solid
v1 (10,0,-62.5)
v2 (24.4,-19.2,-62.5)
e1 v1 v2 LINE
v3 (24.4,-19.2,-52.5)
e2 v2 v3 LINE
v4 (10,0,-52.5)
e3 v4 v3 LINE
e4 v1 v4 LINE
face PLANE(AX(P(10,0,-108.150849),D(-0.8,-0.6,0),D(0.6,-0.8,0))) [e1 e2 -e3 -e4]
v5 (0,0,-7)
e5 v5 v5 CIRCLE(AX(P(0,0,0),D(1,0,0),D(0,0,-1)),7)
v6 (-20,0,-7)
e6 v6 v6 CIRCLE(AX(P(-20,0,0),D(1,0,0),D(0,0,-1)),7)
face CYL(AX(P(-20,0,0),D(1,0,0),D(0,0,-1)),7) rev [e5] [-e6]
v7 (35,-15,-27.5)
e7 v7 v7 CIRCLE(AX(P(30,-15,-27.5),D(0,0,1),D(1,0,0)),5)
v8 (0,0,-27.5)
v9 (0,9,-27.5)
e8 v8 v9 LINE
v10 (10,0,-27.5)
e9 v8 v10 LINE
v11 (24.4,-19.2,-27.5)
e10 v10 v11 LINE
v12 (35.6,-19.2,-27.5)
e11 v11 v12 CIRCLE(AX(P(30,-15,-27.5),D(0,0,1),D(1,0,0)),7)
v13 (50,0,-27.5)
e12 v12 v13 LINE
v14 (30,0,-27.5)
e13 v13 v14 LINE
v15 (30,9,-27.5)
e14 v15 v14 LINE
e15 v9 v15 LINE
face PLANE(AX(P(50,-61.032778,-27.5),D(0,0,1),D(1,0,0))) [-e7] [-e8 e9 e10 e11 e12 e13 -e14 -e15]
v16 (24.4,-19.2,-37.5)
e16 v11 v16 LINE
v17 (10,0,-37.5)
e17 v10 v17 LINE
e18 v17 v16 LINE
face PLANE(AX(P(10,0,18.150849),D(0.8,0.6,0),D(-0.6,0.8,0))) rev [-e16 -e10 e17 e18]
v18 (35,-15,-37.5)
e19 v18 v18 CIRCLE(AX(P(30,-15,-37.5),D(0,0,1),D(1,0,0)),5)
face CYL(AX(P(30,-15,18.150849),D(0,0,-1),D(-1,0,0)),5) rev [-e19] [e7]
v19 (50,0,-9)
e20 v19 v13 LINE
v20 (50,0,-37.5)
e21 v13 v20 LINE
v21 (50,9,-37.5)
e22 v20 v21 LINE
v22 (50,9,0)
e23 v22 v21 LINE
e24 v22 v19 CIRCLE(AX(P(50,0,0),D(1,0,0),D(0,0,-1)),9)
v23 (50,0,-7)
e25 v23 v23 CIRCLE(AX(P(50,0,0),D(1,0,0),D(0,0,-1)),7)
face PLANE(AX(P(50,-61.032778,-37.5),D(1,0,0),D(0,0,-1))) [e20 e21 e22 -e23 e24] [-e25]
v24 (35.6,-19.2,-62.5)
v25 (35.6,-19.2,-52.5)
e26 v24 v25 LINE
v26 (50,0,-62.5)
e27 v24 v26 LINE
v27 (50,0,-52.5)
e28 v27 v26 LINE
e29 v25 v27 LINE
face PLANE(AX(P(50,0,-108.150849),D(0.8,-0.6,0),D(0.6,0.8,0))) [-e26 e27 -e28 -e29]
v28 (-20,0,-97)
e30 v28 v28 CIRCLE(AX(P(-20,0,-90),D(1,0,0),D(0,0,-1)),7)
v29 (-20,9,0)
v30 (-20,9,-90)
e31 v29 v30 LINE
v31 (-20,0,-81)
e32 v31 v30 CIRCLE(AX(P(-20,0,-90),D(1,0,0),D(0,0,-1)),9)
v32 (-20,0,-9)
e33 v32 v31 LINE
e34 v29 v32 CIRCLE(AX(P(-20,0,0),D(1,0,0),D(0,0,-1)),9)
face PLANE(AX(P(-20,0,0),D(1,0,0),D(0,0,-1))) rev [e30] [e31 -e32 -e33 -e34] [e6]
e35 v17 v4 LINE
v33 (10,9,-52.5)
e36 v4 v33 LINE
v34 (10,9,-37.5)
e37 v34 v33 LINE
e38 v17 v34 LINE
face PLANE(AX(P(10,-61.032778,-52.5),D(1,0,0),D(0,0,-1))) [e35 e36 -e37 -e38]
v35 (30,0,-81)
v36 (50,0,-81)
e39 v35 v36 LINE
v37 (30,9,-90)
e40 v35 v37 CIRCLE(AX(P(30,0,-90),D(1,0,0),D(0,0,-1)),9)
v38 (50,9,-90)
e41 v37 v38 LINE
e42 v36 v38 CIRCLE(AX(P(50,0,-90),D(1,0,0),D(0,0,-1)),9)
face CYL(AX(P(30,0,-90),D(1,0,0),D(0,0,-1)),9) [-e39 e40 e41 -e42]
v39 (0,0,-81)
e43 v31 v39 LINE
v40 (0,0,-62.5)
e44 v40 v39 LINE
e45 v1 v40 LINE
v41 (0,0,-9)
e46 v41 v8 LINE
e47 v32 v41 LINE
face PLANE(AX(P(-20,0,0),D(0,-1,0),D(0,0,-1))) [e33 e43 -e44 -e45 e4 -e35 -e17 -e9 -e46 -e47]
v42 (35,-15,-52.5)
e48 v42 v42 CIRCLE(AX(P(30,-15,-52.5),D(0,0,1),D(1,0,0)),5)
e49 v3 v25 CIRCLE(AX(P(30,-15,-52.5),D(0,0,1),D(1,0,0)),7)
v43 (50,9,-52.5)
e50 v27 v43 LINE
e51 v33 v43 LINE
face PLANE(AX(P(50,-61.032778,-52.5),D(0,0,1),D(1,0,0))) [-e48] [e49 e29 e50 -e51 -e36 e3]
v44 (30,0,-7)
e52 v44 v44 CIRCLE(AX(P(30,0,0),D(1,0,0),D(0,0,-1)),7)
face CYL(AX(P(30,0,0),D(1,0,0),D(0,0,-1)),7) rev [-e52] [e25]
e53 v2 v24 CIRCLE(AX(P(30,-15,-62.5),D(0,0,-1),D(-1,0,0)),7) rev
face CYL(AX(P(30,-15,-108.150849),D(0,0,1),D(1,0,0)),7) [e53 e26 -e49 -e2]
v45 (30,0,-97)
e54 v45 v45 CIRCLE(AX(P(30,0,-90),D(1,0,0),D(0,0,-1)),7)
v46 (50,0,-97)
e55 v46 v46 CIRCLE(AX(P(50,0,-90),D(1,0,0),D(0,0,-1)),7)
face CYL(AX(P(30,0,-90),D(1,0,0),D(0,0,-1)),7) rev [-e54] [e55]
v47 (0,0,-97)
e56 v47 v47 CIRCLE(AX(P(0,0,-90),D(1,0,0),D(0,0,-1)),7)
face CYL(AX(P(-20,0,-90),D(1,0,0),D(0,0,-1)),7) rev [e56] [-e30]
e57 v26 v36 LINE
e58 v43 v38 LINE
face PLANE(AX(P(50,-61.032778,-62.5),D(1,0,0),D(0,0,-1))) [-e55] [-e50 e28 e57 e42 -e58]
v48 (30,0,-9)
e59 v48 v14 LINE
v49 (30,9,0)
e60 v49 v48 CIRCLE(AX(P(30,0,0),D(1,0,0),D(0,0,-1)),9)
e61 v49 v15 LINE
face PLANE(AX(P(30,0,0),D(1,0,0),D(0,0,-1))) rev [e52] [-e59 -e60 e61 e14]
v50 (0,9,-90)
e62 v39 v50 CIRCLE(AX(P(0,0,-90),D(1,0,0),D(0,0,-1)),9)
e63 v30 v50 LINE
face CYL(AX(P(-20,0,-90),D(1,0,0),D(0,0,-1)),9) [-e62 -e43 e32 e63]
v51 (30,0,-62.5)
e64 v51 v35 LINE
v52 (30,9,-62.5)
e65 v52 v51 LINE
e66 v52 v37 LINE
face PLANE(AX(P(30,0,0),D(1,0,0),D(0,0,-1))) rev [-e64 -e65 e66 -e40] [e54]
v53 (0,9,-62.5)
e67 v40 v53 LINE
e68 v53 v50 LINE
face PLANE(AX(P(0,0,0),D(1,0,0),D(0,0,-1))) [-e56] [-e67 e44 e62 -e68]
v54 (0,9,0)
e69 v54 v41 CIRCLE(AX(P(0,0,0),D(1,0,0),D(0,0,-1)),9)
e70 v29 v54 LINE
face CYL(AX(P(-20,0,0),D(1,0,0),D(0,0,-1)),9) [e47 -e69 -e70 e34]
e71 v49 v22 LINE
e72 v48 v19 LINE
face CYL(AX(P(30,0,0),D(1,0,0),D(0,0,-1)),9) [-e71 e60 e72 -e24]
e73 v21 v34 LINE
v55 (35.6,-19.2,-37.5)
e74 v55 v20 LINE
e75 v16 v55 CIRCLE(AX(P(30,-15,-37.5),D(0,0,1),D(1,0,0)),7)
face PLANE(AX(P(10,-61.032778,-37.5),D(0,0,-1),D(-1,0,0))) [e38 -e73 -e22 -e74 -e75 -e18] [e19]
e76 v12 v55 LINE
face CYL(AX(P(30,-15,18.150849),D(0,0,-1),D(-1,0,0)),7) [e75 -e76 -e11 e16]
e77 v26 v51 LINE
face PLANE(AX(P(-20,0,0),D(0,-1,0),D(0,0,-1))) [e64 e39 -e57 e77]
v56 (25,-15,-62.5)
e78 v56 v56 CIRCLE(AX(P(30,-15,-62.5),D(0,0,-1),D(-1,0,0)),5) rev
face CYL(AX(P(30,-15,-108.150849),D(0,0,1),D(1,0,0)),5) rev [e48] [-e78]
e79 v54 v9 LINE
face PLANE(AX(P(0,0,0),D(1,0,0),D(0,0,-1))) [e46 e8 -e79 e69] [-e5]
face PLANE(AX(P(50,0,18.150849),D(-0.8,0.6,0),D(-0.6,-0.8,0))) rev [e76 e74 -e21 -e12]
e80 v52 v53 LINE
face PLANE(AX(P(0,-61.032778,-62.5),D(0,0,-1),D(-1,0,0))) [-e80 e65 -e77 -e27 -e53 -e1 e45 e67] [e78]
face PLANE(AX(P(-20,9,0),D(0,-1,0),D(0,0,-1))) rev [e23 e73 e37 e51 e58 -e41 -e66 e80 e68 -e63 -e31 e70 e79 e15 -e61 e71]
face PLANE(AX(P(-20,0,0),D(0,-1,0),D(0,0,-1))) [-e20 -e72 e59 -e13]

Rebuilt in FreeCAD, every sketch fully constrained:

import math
import FreeCAD as App
import Part
import Sketcher


def add_polygon(sketch, points):
    """Adds a closed chain of lines whose ends are joined by coincident constraints."""
    first, n = sketch.GeometryCount, len(points)
    for a, b in zip(points, points[1:] + points[:1]):
        sketch.addGeometry(Part.LineSegment(App.Vector(*a, 0), App.Vector(*b, 0)), False)
    for i in range(n):
        sketch.addConstraint(Sketcher.Constraint("Coincident", first + i, 2, first + (i + 1) % n, 1))

doc = App.newDocument("Part")
body = doc.addObject("PartDesign::Body", "Body")

# Sketch on YZ plane
sketch1 = doc.addObject("Sketcher::SketchObject", "Sketch")
body.addObject(sketch1)
sketch1.AttachmentSupport = (doc.YZ_Plane, [""])
sketch1.MapMode = "FlatFace"
sketch1.addGeometry([
    Part.LineSegment(App.Vector(9, -90, 0), App.Vector(9, 0, 0)),  # 0
    Part.ArcOfCircle(Part.Circle(App.Vector(0, 0, 0), App.Vector(0, 0, 1), 9), math.radians(0), math.radians(270)),  # 1
    Part.LineSegment(App.Vector(0, -9, 0), App.Vector(0, -81, 0)),  # 2
    Part.ArcOfCircle(Part.Circle(App.Vector(0, -90, 0), App.Vector(0, 0, 1), 9), math.radians(90), math.radians(360)),  # 3
    Part.Circle(App.Vector(0, 0, 0), App.Vector(0, 0, 1), 7),  # 4
    Part.Circle(App.Vector(0, -90, 0), App.Vector(0, 0, 1), 7),  # 5
], False)
sketch1.addConstraint([
    Sketcher.Constraint("Tangent", 0, 2, 1, 1),
    Sketcher.Constraint("Coincident", 1, 2, 2, 1),
    Sketcher.Constraint("Coincident", 2, 2, 3, 1),
    Sketcher.Constraint("Tangent", 3, 2, 0, 1),
    Sketcher.Constraint("Vertical", 0),
    Sketcher.Constraint("Vertical", 2),
    Sketcher.Constraint("Coincident", 1, 3, -1, 1),
    Sketcher.Constraint("Coincident", 4, 3, -1, 1),
    Sketcher.Constraint("Coincident", 5, 3, 3, 3),
    Sketcher.Constraint("Equal", 1, 3),
    Sketcher.Constraint("Equal", 4, 5),
    Sketcher.Constraint("PointOnObject", 1, 2, -2),
    Sketcher.Constraint("Diameter", 4, 14.0),
    Sketcher.Constraint("Radius", 1, 9.0),
    Sketcher.Constraint("DistanceY", 0, 1, 0, 2, 90.0),
])
pad1 = doc.addObject("PartDesign::Pad", "Pad")
body.addObject(pad1)
pad1.Profile = sketch1
pad1.Length = 20
pad1.Reversed = True

# Sketch on XZ plane
sketch2 = doc.addObject("Sketcher::SketchObject", "Sketch001")
body.addObject(sketch2)
sketch2.AttachmentSupport = (doc.XZ_Plane, [""])
sketch2.MapMode = "FlatFace"
sketch2.AttachmentOffset = App.Placement(App.Vector(0, 0, -9), App.Rotation())
add_polygon(sketch2, [(50, -62.5), (0, -62.5), (0, -27.5), (50, -27.5), (50, -37.5), (10, -37.5), (10, -52.5), (50, -52.5)])  # lines 0-7
sketch2.addConstraint([
    Sketcher.Constraint("Horizontal", 0),
    Sketcher.Constraint("Vertical", 1),
    Sketcher.Constraint("Horizontal", 2),
    Sketcher.Constraint("Vertical", 3),
    Sketcher.Constraint("Horizontal", 4),
    Sketcher.Constraint("Vertical", 5),
    Sketcher.Constraint("Horizontal", 6),
    Sketcher.Constraint("Vertical", 7),
    Sketcher.Constraint("PointOnObject", 0, 2, -2),
    Sketcher.Constraint("Vertical", 3, 2, 6, 2),
    Sketcher.Constraint("Equal", 3, 7),
    Sketcher.Constraint("DistanceX", 0, 2, 0, 1, 50.0),
    Sketcher.Constraint("DistanceX", 4, 2, 4, 1, 40.0),
    Sketcher.Constraint("DistanceY", 1, 1, 1, 2, 35.0),
    Sketcher.Constraint("DistanceY", 3, 2, 3, 1, 10.0),
    Sketcher.Constraint("DistanceY", 0, 2, -1, 1, 62.5),
])
pad2 = doc.addObject("PartDesign::Pad", "Pad001")
body.addObject(pad2)
pad2.Profile = sketch2
pad2.Length = 9

# Sketch on YZ plane
sketch3 = doc.addObject("Sketcher::SketchObject", "Sketch002")
body.addObject(sketch3)
sketch3.AttachmentSupport = (doc.YZ_Plane, [""])
sketch3.MapMode = "FlatFace"
sketch3.AttachmentOffset = App.Placement(App.Vector(0, 0, 50), App.Rotation())
sketch3.addGeometry([
    Part.ArcOfCircle(Part.Circle(App.Vector(0, 0, 0), App.Vector(0, 0, 1), 9), math.radians(0), math.radians(270)),  # 0
    Part.LineSegment(App.Vector(0, -9, 0), App.Vector(0, -27.5, 0)),  # 1
    Part.LineSegment(App.Vector(0, -27.5, 0), App.Vector(9, -27.5, 0)),  # 2
    Part.LineSegment(App.Vector(9, -27.5, 0), App.Vector(9, 0, 0)),  # 3
    Part.Circle(App.Vector(0, 0, 0), App.Vector(0, 0, 1), 7),  # 4
    Part.LineSegment(App.Vector(9, -90, 0), App.Vector(9, -52.5, 0)),  # 5
    Part.LineSegment(App.Vector(9, -52.5, 0), App.Vector(0, -52.5, 0)),  # 6
    Part.LineSegment(App.Vector(0, -52.5, 0), App.Vector(0, -81, 0)),  # 7
    Part.ArcOfCircle(Part.Circle(App.Vector(0, -90, 0), App.Vector(0, 0, 1), 9), math.radians(90), math.radians(360)),  # 8
    Part.Circle(App.Vector(0, -90, 0), App.Vector(0, 0, 1), 7),  # 9
], False)
sketch3.addConstraint([
    Sketcher.Constraint("Coincident", 0, 2, 1, 1),
    Sketcher.Constraint("Coincident", 1, 2, 2, 1),
    Sketcher.Constraint("Coincident", 2, 2, 3, 1),
    Sketcher.Constraint("Tangent", 3, 2, 0, 1),
    Sketcher.Constraint("Coincident", 5, 2, 6, 1),
    Sketcher.Constraint("Coincident", 6, 2, 7, 1),
    Sketcher.Constraint("Coincident", 7, 2, 8, 1),
    Sketcher.Constraint("Tangent", 8, 2, 5, 1),
    Sketcher.Constraint("Vertical", 1),
    Sketcher.Constraint("Horizontal", 2),
    Sketcher.Constraint("Vertical", 3),
    Sketcher.Constraint("Vertical", 5),
    Sketcher.Constraint("Horizontal", 6),
    Sketcher.Constraint("Vertical", 7),
    Sketcher.Constraint("Coincident", 0, 3, -1, 1),
    Sketcher.Constraint("Coincident", 4, 3, -1, 1),
    Sketcher.Constraint("Coincident", 9, 3, 8, 3),
    Sketcher.Constraint("Equal", 0, 8),
    Sketcher.Constraint("Equal", 4, 9),
    Sketcher.Constraint("PointOnObject", 8, 3, -2),
    Sketcher.Constraint("PointOnObject", 0, 2, -2),
    Sketcher.Constraint("PointOnObject", 6, 2, -2),
    Sketcher.Constraint("Diameter", 4, 14.0),
    Sketcher.Constraint("Radius", 0, 9.0),
    Sketcher.Constraint("DistanceY", 1, 2, 1, 1, 18.5),
    Sketcher.Constraint("DistanceY", 5, 1, 5, 2, 37.5),
    Sketcher.Constraint("DistanceY", 8, 3, -1, 1, 90.0),
])
pad3 = doc.addObject("PartDesign::Pad", "Pad002")
body.addObject(pad3)
pad3.Profile = sketch3
pad3.Length = 20
pad3.Reversed = True

# Sketch on XY plane
sketch4 = doc.addObject("Sketcher::SketchObject", "Sketch003")
body.addObject(sketch4)
sketch4.AttachmentSupport = (doc.XY_Plane, [""])
sketch4.MapMode = "FlatFace"
sketch4.AttachmentOffset = App.Placement(App.Vector(0, 0, -52.5), App.Rotation())
sketch4.addGeometry([
    Part.LineSegment(App.Vector(10, 0, 0), App.Vector(24.4, -19.2, 0)),  # 0
    Part.ArcOfCircle(Part.Circle(App.Vector(30, -15, 0), App.Vector(0, 0, 1), 7), math.radians(-143.130102), math.radians(-36.869898)),  # 1
    Part.LineSegment(App.Vector(35.6, -19.2, 0), App.Vector(50, 0, 0)),  # 2
    Part.LineSegment(App.Vector(50, 0, 0), App.Vector(10, 0, 0)),  # 3
    Part.Circle(App.Vector(30, -15, 0), App.Vector(0, 0, 1), 5),  # 4
], False)
sketch4.addConstraint([
    Sketcher.Constraint("Tangent", 0, 2, 1, 1),
    Sketcher.Constraint("Tangent", 1, 2, 2, 1),
    Sketcher.Constraint("Coincident", 2, 2, 3, 1),
    Sketcher.Constraint("Coincident", 3, 2, 0, 1),
    Sketcher.Constraint("Horizontal", 3),
    Sketcher.Constraint("Coincident", 4, 3, 1, 3),
    Sketcher.Constraint("PointOnObject", 2, 2, -1),
    Sketcher.Constraint("Horizontal", 0, 2, 1, 2),
    Sketcher.Constraint("Diameter", 4, 10.0),
    Sketcher.Constraint("Radius", 1, 7.0),
    Sketcher.Constraint("DistanceX", 3, 2, 3, 1, 40.0),
    Sketcher.Constraint("Distance", 0, 24.0),
    Sketcher.Constraint("DistanceX", -1, 1, 1, 3, 30.0),
])
pad4 = doc.addObject("PartDesign::Pad", "Pad003")
body.addObject(pad4)
pad4.Profile = sketch4
pad4.Length = 10
pad4.Reversed = True

# Sketch on XY plane
sketch5 = doc.addObject("Sketcher::SketchObject", "Sketch004")
body.addObject(sketch5)
sketch5.AttachmentSupport = (doc.XY_Plane, [""])
sketch5.MapMode = "FlatFace"
sketch5.AttachmentOffset = App.Placement(App.Vector(0, 0, -27.5), App.Rotation())
sketch5.addGeometry([
    Part.LineSegment(App.Vector(10, 0, 0), App.Vector(24.4, -19.2, 0)),  # 0
    Part.ArcOfCircle(Part.Circle(App.Vector(30, -15, 0), App.Vector(0, 0, 1), 7), math.radians(-143.130102), math.radians(-36.869898)),  # 1
    Part.LineSegment(App.Vector(35.6, -19.2, 0), App.Vector(50, 0, 0)),  # 2
    Part.LineSegment(App.Vector(50, 0, 0), App.Vector(10, 0, 0)),  # 3
    Part.Circle(App.Vector(30, -15, 0), App.Vector(0, 0, 1), 5),  # 4
], False)
sketch5.addConstraint([
    Sketcher.Constraint("Tangent", 0, 2, 1, 1),
    Sketcher.Constraint("Tangent", 1, 2, 2, 1),
    Sketcher.Constraint("Coincident", 2, 2, 3, 1),
    Sketcher.Constraint("Coincident", 3, 2, 0, 1),
    Sketcher.Constraint("Horizontal", 3),
    Sketcher.Constraint("Coincident", 4, 3, 1, 3),
    Sketcher.Constraint("PointOnObject", 2, 2, -1),
    Sketcher.Constraint("Horizontal", 0, 2, 1, 2),
    Sketcher.Constraint("Diameter", 4, 10.0),
    Sketcher.Constraint("Radius", 1, 7.0),
    Sketcher.Constraint("DistanceX", 3, 2, 3, 1, 40.0),
    Sketcher.Constraint("Distance", 0, 24.0),
    Sketcher.Constraint("DistanceX", -1, 1, 1, 3, 30.0),
])
pad5 = doc.addObject("PartDesign::Pad", "Pad004")
body.addObject(pad5)
pad5.Profile = sketch5
pad5.Length = 10
pad5.Reversed = True

doc.recompute()
